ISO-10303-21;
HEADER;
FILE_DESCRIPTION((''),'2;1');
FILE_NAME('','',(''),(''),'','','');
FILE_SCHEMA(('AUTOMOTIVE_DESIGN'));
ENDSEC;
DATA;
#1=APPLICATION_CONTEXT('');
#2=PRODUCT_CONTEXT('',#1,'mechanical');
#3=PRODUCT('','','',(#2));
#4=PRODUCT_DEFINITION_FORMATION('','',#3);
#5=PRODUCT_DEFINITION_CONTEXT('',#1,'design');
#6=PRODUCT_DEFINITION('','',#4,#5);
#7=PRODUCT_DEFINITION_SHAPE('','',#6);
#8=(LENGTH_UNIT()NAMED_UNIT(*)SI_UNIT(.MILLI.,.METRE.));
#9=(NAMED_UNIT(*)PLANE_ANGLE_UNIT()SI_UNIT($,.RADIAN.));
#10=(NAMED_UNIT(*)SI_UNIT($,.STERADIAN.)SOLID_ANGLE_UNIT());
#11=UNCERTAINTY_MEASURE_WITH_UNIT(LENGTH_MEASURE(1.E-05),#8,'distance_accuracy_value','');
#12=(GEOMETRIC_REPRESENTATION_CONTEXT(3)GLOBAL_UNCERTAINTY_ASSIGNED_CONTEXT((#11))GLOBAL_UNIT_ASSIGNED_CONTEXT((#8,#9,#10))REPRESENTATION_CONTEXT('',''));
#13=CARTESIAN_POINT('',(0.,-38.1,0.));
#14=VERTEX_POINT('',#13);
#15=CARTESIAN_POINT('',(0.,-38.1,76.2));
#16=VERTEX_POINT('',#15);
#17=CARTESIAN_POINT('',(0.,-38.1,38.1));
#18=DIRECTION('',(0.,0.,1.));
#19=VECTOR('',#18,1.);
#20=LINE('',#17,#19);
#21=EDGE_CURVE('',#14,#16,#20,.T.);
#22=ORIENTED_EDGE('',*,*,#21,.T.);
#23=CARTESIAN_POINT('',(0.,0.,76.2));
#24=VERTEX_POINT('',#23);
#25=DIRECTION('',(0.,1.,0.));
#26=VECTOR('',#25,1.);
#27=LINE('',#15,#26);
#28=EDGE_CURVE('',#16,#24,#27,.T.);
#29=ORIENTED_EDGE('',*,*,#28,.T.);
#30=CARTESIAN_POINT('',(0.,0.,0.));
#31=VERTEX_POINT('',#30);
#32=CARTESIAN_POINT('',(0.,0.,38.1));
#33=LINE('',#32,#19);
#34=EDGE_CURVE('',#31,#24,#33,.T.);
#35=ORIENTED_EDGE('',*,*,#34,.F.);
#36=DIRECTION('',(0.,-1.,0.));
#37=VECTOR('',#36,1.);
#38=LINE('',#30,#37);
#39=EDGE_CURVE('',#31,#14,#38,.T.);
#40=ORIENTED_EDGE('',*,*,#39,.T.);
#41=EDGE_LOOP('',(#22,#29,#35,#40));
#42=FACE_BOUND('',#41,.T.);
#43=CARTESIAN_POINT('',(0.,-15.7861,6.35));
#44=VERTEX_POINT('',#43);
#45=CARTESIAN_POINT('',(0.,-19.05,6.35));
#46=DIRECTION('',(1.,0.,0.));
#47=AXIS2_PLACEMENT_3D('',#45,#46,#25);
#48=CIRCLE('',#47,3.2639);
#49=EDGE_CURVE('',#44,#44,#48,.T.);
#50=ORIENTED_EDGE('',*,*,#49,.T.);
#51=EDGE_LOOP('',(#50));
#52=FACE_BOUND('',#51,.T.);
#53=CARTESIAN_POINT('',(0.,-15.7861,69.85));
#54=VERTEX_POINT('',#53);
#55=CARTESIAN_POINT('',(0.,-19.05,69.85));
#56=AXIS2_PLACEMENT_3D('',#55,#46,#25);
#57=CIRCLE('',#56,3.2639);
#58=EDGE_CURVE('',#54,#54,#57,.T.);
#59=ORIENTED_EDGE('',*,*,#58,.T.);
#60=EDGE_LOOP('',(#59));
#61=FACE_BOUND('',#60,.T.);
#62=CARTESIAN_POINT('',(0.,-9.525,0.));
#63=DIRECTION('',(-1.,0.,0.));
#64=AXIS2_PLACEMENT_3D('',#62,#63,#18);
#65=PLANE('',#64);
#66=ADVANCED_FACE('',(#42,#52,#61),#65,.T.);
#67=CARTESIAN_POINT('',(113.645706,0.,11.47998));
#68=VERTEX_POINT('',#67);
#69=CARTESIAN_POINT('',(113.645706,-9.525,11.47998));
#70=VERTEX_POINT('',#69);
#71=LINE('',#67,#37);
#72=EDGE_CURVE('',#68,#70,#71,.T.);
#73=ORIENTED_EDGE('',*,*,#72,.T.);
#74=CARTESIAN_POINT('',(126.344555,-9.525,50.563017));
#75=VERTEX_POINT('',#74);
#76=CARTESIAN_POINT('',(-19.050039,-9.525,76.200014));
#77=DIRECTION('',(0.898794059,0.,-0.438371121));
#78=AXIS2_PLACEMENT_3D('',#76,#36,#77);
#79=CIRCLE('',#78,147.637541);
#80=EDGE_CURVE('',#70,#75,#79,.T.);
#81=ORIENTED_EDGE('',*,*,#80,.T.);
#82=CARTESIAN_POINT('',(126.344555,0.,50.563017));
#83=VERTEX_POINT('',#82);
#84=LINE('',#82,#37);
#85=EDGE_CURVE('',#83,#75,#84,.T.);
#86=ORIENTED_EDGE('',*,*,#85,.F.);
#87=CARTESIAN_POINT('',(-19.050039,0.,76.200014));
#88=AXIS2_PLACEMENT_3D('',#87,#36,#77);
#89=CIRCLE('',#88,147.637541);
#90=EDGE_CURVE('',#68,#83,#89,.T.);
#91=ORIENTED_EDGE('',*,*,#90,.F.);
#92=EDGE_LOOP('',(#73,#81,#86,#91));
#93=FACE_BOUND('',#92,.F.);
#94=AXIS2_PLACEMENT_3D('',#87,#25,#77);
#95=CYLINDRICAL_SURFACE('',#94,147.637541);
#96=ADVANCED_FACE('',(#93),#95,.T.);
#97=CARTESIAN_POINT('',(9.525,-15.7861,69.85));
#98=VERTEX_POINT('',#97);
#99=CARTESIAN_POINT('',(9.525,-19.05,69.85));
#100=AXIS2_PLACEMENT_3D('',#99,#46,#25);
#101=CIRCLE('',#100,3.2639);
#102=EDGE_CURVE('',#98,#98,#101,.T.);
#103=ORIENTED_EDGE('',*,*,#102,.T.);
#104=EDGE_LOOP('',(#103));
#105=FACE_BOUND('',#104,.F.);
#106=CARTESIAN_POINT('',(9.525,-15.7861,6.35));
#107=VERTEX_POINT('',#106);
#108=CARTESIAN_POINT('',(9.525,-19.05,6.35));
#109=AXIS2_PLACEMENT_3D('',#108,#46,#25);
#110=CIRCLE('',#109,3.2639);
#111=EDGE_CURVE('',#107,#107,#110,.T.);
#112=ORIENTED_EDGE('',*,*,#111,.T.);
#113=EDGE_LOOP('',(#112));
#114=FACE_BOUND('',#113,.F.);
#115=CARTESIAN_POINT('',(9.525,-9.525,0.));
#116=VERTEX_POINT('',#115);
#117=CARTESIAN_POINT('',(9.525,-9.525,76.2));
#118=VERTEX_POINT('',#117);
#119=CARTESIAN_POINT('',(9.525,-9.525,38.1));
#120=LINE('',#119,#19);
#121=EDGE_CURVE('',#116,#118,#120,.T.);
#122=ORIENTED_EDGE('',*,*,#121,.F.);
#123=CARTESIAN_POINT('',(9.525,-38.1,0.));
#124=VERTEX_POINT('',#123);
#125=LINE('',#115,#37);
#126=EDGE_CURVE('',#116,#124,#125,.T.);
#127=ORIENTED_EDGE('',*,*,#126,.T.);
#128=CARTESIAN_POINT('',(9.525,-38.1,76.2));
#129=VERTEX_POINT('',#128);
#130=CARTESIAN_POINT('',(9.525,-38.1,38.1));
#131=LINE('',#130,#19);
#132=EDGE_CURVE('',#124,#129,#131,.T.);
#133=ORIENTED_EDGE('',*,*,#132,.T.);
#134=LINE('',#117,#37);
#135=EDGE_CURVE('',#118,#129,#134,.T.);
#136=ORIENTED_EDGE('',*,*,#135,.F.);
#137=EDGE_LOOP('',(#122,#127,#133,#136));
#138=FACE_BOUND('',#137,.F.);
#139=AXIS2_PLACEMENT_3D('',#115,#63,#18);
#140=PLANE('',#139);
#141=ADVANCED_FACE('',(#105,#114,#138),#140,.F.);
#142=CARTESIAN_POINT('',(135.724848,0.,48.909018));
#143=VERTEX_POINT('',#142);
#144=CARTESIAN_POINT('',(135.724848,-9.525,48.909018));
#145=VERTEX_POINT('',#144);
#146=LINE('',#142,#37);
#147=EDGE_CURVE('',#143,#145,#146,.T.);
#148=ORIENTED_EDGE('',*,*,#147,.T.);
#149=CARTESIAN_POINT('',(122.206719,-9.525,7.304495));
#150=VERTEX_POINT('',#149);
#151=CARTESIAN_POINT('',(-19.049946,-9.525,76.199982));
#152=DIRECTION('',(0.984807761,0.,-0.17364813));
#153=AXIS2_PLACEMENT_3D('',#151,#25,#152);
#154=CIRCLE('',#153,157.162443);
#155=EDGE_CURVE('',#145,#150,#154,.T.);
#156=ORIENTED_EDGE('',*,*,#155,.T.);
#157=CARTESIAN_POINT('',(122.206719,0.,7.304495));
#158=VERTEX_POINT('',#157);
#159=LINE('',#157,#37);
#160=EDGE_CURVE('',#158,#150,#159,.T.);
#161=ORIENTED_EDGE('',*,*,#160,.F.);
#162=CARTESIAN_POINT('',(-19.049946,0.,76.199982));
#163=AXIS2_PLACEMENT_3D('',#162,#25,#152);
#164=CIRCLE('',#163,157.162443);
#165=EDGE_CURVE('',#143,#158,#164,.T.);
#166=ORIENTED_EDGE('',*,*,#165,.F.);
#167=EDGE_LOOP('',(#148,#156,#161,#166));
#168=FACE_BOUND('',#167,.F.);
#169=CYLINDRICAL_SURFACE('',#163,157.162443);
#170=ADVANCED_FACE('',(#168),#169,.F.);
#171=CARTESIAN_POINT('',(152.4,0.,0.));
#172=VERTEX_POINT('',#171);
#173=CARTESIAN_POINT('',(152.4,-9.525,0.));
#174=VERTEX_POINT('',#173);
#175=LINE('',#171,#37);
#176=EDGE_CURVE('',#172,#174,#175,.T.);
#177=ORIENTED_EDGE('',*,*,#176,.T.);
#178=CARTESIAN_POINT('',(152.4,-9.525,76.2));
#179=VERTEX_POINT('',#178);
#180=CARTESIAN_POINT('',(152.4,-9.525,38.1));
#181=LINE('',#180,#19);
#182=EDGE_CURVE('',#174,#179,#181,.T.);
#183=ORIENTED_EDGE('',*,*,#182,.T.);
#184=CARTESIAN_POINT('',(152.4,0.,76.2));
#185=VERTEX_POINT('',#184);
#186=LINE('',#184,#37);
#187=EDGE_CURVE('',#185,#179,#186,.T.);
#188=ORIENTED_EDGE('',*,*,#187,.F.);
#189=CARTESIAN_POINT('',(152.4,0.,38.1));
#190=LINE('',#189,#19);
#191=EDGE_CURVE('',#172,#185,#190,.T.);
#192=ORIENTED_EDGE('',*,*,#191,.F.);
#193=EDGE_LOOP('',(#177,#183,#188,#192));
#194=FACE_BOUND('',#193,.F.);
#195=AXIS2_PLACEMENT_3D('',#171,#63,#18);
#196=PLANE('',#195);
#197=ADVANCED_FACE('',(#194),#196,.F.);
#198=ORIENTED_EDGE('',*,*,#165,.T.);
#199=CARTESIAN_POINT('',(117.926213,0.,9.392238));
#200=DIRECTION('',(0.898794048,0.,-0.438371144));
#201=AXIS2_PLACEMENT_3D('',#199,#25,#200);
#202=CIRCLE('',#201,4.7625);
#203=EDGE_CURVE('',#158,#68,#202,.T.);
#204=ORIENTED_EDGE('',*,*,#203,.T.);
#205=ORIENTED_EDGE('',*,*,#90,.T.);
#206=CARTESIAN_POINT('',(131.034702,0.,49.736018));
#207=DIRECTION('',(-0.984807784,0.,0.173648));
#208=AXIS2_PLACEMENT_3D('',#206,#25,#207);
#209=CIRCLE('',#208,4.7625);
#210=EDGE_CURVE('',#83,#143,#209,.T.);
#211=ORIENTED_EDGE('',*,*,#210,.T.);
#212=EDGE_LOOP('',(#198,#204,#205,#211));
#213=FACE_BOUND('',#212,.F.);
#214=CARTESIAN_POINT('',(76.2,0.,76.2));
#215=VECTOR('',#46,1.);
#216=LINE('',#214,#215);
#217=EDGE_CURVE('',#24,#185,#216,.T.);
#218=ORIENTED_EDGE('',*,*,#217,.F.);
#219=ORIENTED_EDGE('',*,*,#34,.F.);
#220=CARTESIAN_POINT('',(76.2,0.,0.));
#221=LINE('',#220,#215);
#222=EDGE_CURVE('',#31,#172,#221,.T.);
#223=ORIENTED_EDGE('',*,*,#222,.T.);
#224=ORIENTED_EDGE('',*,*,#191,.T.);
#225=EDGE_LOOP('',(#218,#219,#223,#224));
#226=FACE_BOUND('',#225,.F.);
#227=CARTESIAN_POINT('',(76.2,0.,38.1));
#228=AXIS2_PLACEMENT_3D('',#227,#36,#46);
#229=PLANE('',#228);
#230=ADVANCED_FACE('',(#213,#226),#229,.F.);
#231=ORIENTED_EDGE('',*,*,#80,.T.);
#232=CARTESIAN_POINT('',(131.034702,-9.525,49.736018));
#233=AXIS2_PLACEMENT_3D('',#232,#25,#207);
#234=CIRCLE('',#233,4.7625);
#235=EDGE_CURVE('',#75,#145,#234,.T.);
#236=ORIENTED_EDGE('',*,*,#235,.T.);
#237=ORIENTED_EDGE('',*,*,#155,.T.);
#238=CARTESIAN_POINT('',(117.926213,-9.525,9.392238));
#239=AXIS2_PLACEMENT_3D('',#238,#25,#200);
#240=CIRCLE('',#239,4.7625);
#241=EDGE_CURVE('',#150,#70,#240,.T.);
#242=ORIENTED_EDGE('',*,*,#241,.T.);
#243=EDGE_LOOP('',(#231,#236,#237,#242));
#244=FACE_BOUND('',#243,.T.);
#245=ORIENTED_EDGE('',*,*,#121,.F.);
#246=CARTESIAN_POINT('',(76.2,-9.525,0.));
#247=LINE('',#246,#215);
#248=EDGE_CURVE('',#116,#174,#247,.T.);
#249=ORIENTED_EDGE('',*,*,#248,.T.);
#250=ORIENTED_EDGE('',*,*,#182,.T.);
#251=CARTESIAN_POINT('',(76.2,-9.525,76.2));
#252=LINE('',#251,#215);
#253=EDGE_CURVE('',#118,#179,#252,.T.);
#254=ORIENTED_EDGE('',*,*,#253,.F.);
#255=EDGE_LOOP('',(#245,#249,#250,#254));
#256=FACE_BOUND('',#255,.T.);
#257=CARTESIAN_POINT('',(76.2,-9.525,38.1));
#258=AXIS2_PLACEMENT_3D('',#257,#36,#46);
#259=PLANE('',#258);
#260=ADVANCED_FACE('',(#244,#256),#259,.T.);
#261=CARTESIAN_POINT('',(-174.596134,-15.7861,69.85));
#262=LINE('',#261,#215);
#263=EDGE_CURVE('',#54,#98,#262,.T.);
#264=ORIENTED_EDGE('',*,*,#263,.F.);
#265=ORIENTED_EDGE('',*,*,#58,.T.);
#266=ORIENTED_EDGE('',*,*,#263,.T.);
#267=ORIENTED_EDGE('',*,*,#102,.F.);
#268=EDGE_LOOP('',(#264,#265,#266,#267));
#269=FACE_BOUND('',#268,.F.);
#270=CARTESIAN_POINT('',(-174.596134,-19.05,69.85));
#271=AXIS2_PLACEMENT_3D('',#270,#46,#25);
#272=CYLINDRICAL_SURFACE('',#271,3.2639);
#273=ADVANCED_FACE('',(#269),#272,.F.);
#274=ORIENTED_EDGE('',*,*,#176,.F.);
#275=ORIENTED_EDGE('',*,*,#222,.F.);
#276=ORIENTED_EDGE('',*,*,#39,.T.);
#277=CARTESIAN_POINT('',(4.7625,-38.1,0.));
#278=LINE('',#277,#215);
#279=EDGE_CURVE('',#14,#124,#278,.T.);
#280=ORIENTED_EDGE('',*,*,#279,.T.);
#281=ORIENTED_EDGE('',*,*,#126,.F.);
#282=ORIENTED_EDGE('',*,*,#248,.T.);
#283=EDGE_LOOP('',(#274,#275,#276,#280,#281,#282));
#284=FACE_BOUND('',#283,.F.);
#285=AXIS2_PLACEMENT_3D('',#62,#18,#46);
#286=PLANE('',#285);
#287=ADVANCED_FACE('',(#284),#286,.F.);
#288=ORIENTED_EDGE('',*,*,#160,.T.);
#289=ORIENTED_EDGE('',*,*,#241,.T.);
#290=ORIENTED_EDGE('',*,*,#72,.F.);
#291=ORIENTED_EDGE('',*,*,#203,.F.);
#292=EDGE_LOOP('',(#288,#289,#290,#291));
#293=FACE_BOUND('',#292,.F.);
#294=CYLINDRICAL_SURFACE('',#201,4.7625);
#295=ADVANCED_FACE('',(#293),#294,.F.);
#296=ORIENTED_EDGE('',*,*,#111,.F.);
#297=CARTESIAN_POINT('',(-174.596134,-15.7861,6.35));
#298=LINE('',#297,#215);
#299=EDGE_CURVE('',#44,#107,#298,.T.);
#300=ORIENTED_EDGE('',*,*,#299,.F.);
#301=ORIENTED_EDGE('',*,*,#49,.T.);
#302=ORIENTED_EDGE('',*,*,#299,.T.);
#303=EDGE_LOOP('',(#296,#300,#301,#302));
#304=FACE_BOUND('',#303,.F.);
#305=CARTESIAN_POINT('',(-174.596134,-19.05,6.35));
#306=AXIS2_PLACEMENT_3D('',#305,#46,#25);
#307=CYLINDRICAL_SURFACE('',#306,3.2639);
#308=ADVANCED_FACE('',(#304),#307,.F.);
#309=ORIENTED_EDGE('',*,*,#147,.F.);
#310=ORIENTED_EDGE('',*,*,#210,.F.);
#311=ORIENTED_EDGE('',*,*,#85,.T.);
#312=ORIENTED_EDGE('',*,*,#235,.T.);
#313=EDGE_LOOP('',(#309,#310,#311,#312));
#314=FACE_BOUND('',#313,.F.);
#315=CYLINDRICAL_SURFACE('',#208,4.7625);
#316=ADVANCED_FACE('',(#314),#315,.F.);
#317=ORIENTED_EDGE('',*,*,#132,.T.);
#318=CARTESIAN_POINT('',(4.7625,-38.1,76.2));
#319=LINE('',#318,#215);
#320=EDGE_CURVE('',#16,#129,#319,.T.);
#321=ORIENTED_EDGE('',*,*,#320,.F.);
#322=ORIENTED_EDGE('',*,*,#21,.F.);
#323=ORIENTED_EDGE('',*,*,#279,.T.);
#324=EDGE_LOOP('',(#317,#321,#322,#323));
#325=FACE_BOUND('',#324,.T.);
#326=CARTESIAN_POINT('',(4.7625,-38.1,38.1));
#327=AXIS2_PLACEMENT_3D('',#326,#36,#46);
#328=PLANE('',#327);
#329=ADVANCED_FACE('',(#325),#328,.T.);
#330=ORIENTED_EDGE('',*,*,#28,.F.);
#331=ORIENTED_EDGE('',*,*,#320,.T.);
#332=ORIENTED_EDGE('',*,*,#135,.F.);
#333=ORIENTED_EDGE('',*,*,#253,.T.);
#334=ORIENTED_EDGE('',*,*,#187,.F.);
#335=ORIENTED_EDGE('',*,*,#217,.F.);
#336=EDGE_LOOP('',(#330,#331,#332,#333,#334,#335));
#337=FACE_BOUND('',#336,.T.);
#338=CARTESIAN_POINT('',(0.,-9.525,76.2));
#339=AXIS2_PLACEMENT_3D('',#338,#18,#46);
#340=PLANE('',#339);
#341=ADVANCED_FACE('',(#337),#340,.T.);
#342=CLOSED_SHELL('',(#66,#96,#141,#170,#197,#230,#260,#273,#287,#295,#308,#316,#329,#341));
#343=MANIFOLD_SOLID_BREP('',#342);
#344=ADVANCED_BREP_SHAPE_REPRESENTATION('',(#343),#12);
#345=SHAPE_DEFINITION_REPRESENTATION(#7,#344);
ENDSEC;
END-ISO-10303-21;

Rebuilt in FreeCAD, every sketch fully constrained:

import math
import FreeCAD as App
import Part
import Sketcher

V = App.Vector
Q = App.Units.Quantity


def add_polygon(sketch, points):
    """Adds a closed chain of lines whose ends are joined by coincident constraints."""
    first, n = sketch.GeometryCount, len(points)
    for a, b in zip(points, points[1:] + points[:1]):
        sketch.addGeometry(Part.LineSegment(App.Vector(*a, 0), App.Vector(*b, 0)), False)
    for i in range(n):
        sketch.addConstraint(Sketcher.Constraint("Coincident", first + i, 2, first + (i + 1) % n, 1))

doc = App.newDocument("Part")
params = doc.addObject("Spreadsheet::Sheet", "Params")
for row, (alias, value) in enumerate([
    ("sketch1_width", "6 in"),
    ("sketch1_height", "3 in"),
    ("sketch1_radius", "0.1875 in"),
    ("sketch1_radius2", "0.1875 in"),
    ("pad1_length", "0.375 in"),
    ("sketch2_height", "3 in"),
    ("sketch2_width", "0.375 in"),
    ("pad2_length", "1.125 in"),
    ("sketch3_diameter", "0.257 in"),
    ("hole_diameter", "0.257 in"),
], start=1):
    params.set(f"A{row}", alias)
    params.set(f"B{row}", "=" + value)
    params.setAlias(f"B{row}", alias)

body = doc.addObject("PartDesign::Body", "Body")

sketch1 = doc.addObject("Sketcher::SketchObject", "Sketch")
body.addObject(sketch1)
sketch1.AttachmentSupport = (doc.XZ_Plane, [""])
sketch1.MapMode = "FlatFace"
add_polygon(sketch1, [(0, 76.2), (0, 0), (152.4, 0), (152.4, 76.2)])
sketch1.addGeometry(Part.ArcOfCircle(Part.Circle(V(131.034702, 49.736018, 0), V(0, 0, 1), 4.7625), math.radians(-10.000013), math.radians(170.00001)), False)
sketch1.addGeometry(Part.ArcOfCircle(Part.Circle(V(-19.049946, 76.199982, 0), V(0, 0, 1), 157.162443), math.radians(-26.000003), math.radians(-9.999997)), False)
sketch1.addGeometry(Part.ArcOfCircle(Part.Circle(V(117.926213, 9.392238, 0), V(0, 0, 1), 4.7625), math.radians(154), math.radians(334)), False)
sketch1.addGeometry(Part.ArcOfCircle(Part.Circle(V(-19.050039, 76.200014, 0), V(0, 0, 1), 147.637541), math.radians(-25.999998), math.radians(-10.000003)), False)
sketch1.addConstraint([
    Sketcher.Constraint("Coincident", 4, 1, 5, 2),
    Sketcher.Constraint("Coincident", 5, 1, 6, 2),
    Sketcher.Constraint("Coincident", 6, 1, 7, 1),
    Sketcher.Constraint("Coincident", 7, 2, 4, 2),
    Sketcher.Constraint("Vertical", 0),
    Sketcher.Constraint("Horizontal", 1),
    Sketcher.Constraint("Vertical", 2),
    Sketcher.Constraint("Horizontal", 3),
    Sketcher.Constraint("Coincident", 0, 2, -1, 1),
    Sketcher.Constraint("DistanceX", 1, 1, 1, 2, Q("6 in")),
    Sketcher.Constraint("DistanceY", 0, 2, 0, 1, Q("3 in")),
    Sketcher.Constraint("Radius", 4, Q("0.1875 in")),
    Sketcher.Constraint("Radius", 6, Q("0.1875 in")),
    Sketcher.Constraint("Radius", 7, 147.637541),
    Sketcher.Constraint("Radius", 5, 157.162443),
    Sketcher.Constraint("DistanceX", -1, 1, 4, 3, 131.034702),
    Sketcher.Constraint("DistanceY", 4, 1, 4, 3, 0.827),
    Sketcher.Constraint("DistanceY", 4, 3, 7, 2, 0.826999),
    Sketcher.Constraint("DistanceY", -1, 1, 4, 3, 49.736018),
    Sketcher.Constraint("DistanceX", 7, 3, -1, 1, 19.050039),
    Sketcher.Constraint("DistanceX", -1, 1, 5, 1, 122.206719),
    Sketcher.Constraint("DistanceY", -1, 1, 6, 1, 11.47998),
    Sketcher.Constraint("DistanceX", 6, 3, 4, 3, 13.108489),
])
sketch1.setExpression("Constraints[13]", "Params.sketch1_width")
sketch1.setExpression("Constraints[14]", "Params.sketch1_height")
sketch1.setExpression("Constraints[15]", "Params.sketch1_radius")
sketch1.setExpression("Constraints[16]", "Params.sketch1_radius2")
pad1 = doc.addObject("PartDesign::Pad", "Pad")
body.addObject(pad1)
pad1.Profile = sketch1
pad1.setExpression("Length", "Params.pad1_length")

sketch2 = doc.addObject("Sketcher::SketchObject", "Sketch001")
body.addObject(sketch2)
sketch2.AttachmentSupport = (doc.XZ_Plane, [""])
sketch2.MapMode = "FlatFace"
sketch2.AttachmentOffset = App.Placement(V(0, 0, 0.375 * 25.4), App.Rotation())
add_polygon(sketch2, [(0, 76), (0, 0), (10, 0), (10, 76)])
sketch2.addConstraint([
    Sketcher.Constraint("Vertical", 0),
    Sketcher.Constraint("Horizontal", 1),
    Sketcher.Constraint("Vertical", 2),
    Sketcher.Constraint("Horizontal", 3),
    Sketcher.Constraint("Coincident", 0, 2, -1, 1),
    Sketcher.Constraint("DistanceY", 0, 2, 0, 1, Q("3 in")),
    Sketcher.Constraint("DistanceX", 1, 1, 1, 2, Q("0.375 in")),
])
sketch2.setExpression("Constraints[9]", "Params.sketch2_height")
sketch2.setExpression("Constraints[10]", "Params.sketch2_width")
pad2 = doc.addObject("PartDesign::Pad", "Pad001")
body.addObject(pad2)
pad2.Profile = sketch2
pad2.setExpression("Length", "Params.pad2_length")

sketch3 = doc.addObject("Sketcher::SketchObject", "Sketch002")
body.addObject(sketch3)
sketch3.AttachmentSupport = (doc.YZ_Plane, [""])
sketch3.MapMode = "FlatFace"
sketch3.addGeometry([
    Part.Circle(V(-19.1, 69.8, 0), V(0, 0, 1), 3.3),
    Part.Circle(V(-19.1, 6.3, 0), V(0, 0, 1), 3.3),
], False)
sketch3.addConstraint([
    Sketcher.Constraint("Equal", 0, 1),
    Sketcher.Constraint("Vertical", 0, 3, 1, 3),
    Sketcher.Constraint("Diameter", 0, Q("0.257 in")),
    Sketcher.Constraint("DistanceY", 1, 3, 0, 3, Q("2.5 in")),
    Sketcher.Constraint("DistanceX", 0, 3, -1, 1, Q("0.75 in")),
    Sketcher.Constraint("DistanceY", -1, 1, 0, 3, Q("2.75 in")),
])
sketch3.setExpression("Constraints[2]", "Params.sketch3_diameter")
doc.recompute()
hole = doc.addObject("PartDesign::Hole", "Hole")
body.addObject(hole)
hole.Profile = sketch3
hole.ThreadType = "None"
hole.setExpression("Diameter", "Params.hole_diameter")
hole.DepthType = "ThroughAll"
hole.Reversed = True

doc.recompute()
